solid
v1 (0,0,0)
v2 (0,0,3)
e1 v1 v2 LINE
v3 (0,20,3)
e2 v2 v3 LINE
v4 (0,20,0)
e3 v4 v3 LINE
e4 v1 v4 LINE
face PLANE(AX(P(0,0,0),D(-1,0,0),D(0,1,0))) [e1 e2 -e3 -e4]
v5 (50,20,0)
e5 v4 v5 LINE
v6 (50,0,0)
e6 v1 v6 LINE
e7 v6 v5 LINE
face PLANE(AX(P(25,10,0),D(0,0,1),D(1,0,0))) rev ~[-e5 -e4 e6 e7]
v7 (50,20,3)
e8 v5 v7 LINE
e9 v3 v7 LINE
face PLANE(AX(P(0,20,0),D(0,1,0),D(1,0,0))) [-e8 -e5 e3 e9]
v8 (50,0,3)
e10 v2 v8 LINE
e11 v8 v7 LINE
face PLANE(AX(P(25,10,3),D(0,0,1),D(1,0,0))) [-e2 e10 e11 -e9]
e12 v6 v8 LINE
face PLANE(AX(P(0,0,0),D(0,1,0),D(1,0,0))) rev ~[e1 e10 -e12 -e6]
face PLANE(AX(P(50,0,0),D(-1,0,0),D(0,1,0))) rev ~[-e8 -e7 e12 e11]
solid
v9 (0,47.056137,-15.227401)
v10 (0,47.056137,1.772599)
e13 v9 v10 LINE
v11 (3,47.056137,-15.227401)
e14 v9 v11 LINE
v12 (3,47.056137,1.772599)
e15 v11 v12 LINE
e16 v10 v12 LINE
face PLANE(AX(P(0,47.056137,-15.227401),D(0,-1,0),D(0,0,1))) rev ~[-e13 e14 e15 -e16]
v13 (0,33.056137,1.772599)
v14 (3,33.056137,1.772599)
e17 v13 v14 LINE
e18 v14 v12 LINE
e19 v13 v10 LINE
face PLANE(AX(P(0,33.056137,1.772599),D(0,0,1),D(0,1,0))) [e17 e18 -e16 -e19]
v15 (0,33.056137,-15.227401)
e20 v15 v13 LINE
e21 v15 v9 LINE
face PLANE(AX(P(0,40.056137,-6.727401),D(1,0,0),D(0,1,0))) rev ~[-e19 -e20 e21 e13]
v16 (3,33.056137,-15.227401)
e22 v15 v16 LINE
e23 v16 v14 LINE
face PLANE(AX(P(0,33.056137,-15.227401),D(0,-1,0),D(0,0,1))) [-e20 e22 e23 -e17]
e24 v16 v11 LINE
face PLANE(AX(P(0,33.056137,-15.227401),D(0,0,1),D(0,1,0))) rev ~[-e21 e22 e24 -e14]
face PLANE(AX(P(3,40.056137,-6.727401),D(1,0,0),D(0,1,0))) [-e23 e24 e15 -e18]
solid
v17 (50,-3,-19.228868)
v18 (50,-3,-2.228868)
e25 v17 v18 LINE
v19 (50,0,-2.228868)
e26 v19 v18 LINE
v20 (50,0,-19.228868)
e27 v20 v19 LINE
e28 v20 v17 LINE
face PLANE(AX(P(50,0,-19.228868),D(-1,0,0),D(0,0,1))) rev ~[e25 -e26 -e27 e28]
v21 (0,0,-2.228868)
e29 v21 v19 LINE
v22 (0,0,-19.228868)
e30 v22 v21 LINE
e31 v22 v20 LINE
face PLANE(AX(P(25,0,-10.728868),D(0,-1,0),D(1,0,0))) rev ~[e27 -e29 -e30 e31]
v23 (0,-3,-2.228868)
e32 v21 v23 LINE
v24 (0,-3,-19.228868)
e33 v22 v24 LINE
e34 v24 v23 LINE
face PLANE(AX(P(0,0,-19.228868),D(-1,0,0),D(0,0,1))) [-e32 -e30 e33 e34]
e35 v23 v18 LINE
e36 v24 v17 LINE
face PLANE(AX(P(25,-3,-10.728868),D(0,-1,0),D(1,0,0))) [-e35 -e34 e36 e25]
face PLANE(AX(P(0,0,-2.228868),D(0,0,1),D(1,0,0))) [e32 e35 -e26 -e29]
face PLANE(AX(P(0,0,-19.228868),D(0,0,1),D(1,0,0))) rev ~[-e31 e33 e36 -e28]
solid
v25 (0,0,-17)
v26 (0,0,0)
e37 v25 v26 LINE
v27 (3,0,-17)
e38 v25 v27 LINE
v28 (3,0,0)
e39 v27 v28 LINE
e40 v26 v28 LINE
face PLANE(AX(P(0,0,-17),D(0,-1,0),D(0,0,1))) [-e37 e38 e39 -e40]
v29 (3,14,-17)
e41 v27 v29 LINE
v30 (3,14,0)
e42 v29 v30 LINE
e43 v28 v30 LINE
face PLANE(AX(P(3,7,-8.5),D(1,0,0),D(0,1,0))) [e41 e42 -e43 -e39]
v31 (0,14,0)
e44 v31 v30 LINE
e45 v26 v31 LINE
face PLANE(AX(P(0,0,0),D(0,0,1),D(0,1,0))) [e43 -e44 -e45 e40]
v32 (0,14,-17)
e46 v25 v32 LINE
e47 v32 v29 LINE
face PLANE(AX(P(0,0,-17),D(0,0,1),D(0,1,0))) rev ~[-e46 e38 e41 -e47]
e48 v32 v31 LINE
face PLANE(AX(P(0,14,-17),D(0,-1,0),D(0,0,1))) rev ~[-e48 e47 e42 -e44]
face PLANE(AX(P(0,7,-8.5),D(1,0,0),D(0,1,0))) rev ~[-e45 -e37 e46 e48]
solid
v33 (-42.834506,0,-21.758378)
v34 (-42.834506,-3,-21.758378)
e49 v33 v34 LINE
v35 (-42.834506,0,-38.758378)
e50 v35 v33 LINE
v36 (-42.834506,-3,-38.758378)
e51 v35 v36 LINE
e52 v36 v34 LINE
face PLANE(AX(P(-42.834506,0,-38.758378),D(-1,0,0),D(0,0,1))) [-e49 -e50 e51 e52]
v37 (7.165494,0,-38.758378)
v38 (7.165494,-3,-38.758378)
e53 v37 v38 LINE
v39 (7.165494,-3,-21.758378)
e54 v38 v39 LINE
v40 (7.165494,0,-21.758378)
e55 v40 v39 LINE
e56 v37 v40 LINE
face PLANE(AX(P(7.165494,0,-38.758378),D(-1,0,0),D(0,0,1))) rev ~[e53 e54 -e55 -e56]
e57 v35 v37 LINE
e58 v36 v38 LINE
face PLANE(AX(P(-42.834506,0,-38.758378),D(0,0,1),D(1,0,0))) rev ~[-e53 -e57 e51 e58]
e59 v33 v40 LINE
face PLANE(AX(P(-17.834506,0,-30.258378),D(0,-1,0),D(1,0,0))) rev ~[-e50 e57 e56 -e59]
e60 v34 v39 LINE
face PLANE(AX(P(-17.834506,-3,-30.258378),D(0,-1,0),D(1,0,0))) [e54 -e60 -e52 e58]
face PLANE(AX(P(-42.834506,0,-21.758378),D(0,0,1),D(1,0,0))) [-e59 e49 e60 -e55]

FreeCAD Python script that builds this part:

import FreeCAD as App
import Part
import Sketcher

doc = App.newDocument("Part")
body = doc.addObject("PartDesign::Body", "Body")

# Sketch on XY plane
sketch1 = body.newObject("Sketcher::SketchObject", "Sketch")
sketch1.AttachmentSupport = (doc.getObject("XY_Plane"), [""])
sketch1.MapMode = "FlatFace"
sketch1.addGeometry(Part.LineSegment(App.Vector(-95, 173, 0), App.Vector(0, 0, 0)), False)
sketch1.addGeometry(Part.LineSegment(App.Vector(0, 0, 0), App.Vector(49, 0, 0)), False)
sketch1.addGeometry(Part.LineSegment(App.Vector(49, 0, 0), App.Vector(-43, 173, 0)), False)
sketch1.addGeometry(Part.LineSegment(App.Vector(-43, 173, 0), App.Vector(-95, 173, 0)), False)
sketch1.addConstraint(Sketcher.Constraint("Coincident", 0, 2, 1, 1))
sketch1.addConstraint(Sketcher.Constraint("Coincident", 1, 2, 2, 1))
sketch1.addConstraint(Sketcher.Constraint("Coincident", 2, 2, 3, 1))
sketch1.addConstraint(Sketcher.Constraint("Coincident", 3, 2, 0, 1))
sketch1.addConstraint(Sketcher.Constraint("Horizontal", 1))
sketch1.addConstraint(Sketcher.Constraint("Horizontal", 3))
sketch1.addConstraint(Sketcher.Constraint("Coincident", 0, 2, -1, 1))
sketch1.addConstraint(Sketcher.Constraint("DistanceX", 1, 1, 1, 2, 49.20236))
sketch1.addConstraint(Sketcher.Constraint("DistanceX", 3, 2, 3, 1, 51.842708))
sketch1.addConstraint(Sketcher.Constraint("Distance", 2, 196.427181))
sketch1.addConstraint(Sketcher.Constraint("DistanceX", 2, 2, -1, 1, 43.242309))
pad1 = body.newObject("PartDesign::Pad", "Pad")
pad1.Profile = sketch1
pad1.Length = 5.08
pad1.Reversed = True
body2 = doc.addObject("PartDesign::Body", "Body001")

# Sketch on XY plane
sketch2 = body2.newObject("Sketcher::SketchObject", "Sketch001")
sketch2.AttachmentSupport = (doc.getObject("XY_Plane001"), [""])
sketch2.MapMode = "FlatFace"
sketch2.addGeometry(Part.LineSegment(App.Vector(0, 20, 0), App.Vector(0, 0, 0)), False)
sketch2.addGeometry(Part.LineSegment(App.Vector(0, 0, 0), App.Vector(50, 0, 0)), False)
sketch2.addGeometry(Part.LineSegment(App.Vector(50, 0, 0), App.Vector(50, 20, 0)), False)
sketch2.addGeometry(Part.LineSegment(App.Vector(50, 20, 0), App.Vector(0, 20, 0)), False)
sketch2.addConstraint(Sketcher.Constraint("Coincident", 0, 2, 1, 1))
sketch2.addConstraint(Sketcher.Constraint("Coincident", 1, 2, 2, 1))
sketch2.addConstraint(Sketcher.Constraint("Coincident", 2, 2, 3, 1))
sketch2.addConstraint(Sketcher.Constraint("Coincident", 3, 2, 0, 1))
sketch2.addConstraint(Sketcher.Constraint("Vertical", 0))
sketch2.addConstraint(Sketcher.Constraint("Horizontal", 1))
sketch2.addConstraint(Sketcher.Constraint("Vertical", 2))
sketch2.addConstraint(Sketcher.Constraint("Horizontal", 3))
sketch2.addConstraint(Sketcher.Constraint("Coincident", 0, 2, -1, 1))
sketch2.addConstraint(Sketcher.Constraint("DistanceX", 1, 1, 1, 2, 50.0))
sketch2.addConstraint(Sketcher.Constraint("DistanceY", 0, 2, 0, 1, 20.0))
pad2 = body2.newObject("PartDesign::Pad", "Pad001")
pad2.Profile = sketch2
pad2.Length = 3
body3 = doc.addObject("PartDesign::Body", "Body002")

# Sketch on XZ plane
sketch3 = body3.newObject("Sketcher::SketchObject", "Sketch002")
sketch3.AttachmentSupport = (doc.getObject("XZ_Plane002"), [""])
sketch3.MapMode = "FlatFace"
sketch3.addGeometry(Part.LineSegment(App.Vector(0, -2, 0), App.Vector(0, -19, 0)), False)
sketch3.addGeometry(Part.LineSegment(App.Vector(0, -19, 0), App.Vector(50, -19, 0)), False)
sketch3.addGeometry(Part.LineSegment(App.Vector(50, -19, 0), App.Vector(50, -2, 0)), False)
sketch3.addGeometry(Part.LineSegment(App.Vector(50, -2, 0), App.Vector(0, -2, 0)), False)
sketch3.addConstraint(Sketcher.Constraint("Coincident", 0, 2, 1, 1))
sketch3.addConstraint(Sketcher.Constraint("Coincident", 1, 2, 2, 1))
sketch3.addConstraint(Sketcher.Constraint("Coincident", 2, 2, 3, 1))
sketch3.addConstraint(Sketcher.Constraint("Coincident", 3, 2, 0, 1))
sketch3.addConstraint(Sketcher.Constraint("Vertical", 0))
sketch3.addConstraint(Sketcher.Constraint("Horizontal", 1))
sketch3.addConstraint(Sketcher.Constraint("Vertical", 2))
sketch3.addConstraint(Sketcher.Constraint("Horizontal", 3))
sketch3.addConstraint(Sketcher.Constraint("PointOnObject", 0, 2, -2))
sketch3.addConstraint(Sketcher.Constraint("DistanceX", 1, 1, 1, 2, 50.0))
sketch3.addConstraint(Sketcher.Constraint("DistanceY", 0, 2, 0, 1, 17.0))
sketch3.addConstraint(Sketcher.Constraint("DistanceY", 0, 2, -1, 1, 19.228868))
pad3 = body3.newObject("PartDesign::Pad", "Pad002")
pad3.Profile = sketch3
pad3.Length = 3
body4 = doc.addObject("PartDesign::Body", "Body003")

# Sketch on YZ plane
sketch4 = body4.newObject("Sketcher::SketchObject", "Sketch003")
sketch4.AttachmentSupport = (doc.getObject("YZ_Plane003"), [""])
sketch4.MapMode = "FlatFace"
sketch4.addGeometry(Part.LineSegment(App.Vector(0, 0, 0), App.Vector(0, -17, 0)), False)
sketch4.addGeometry(Part.LineSegment(App.Vector(0, -17, 0), App.Vector(14, -17, 0)), False)
sketch4.addGeometry(Part.LineSegment(App.Vector(14, -17, 0), App.Vector(14, 0, 0)), False)
sketch4.addGeometry(Part.LineSegment(App.Vector(14, 0, 0), App.Vector(0, 0, 0)), False)
sketch4.addConstraint(Sketcher.Constraint("Coincident", 0, 2, 1, 1))
sketch4.addConstraint(Sketcher.Constraint("Coincident", 1, 2, 2, 1))
sketch4.addConstraint(Sketcher.Constraint("Coincident", 2, 2, 3, 1))
sketch4.addConstraint(Sketcher.Constraint("Coincident", 3, 2, 0, 1))
sketch4.addConstraint(Sketcher.Constraint("Vertical", 0))
sketch4.addConstraint(Sketcher.Constraint("Horizontal", 1))
sketch4.addConstraint(Sketcher.Constraint("Vertical", 2))
sketch4.addConstraint(Sketcher.Constraint("Horizontal", 3))
sketch4.addConstraint(Sketcher.Constraint("Coincident", 3, 2, -1, 1))
sketch4.addConstraint(Sketcher.Constraint("DistanceX", 1, 1, 1, 2, 14.0))
sketch4.addConstraint(Sketcher.Constraint("DistanceY", 0, 2, 0, 1, 17.0))
pad4 = body4.newObject("PartDesign::Pad", "Pad003")
pad4.Profile = sketch4
pad4.Length = 3
body5 = doc.addObject("PartDesign::Body", "Body004")

# Sketch on YZ plane
sketch5 = body5.newObject("Sketcher::SketchObject", "Sketch004")
sketch5.AttachmentSupport = (doc.getObject("YZ_Plane004"), [""])
sketch5.MapMode = "FlatFace"
sketch5.addGeometry(Part.LineSegment(App.Vector(33, 2, 0), App.Vector(33, -15, 0)), False)
sketch5.addGeometry(Part.LineSegment(App.Vector(33, -15, 0), App.Vector(47, -15, 0)), False)
sketch5.addGeometry(Part.LineSegment(App.Vector(47, -15, 0), App.Vector(47, 2, 0)), False)
sketch5.addGeometry(Part.LineSegment(App.Vector(47, 2, 0), App.Vector(33, 2, 0)), False)
sketch5.addConstraint(Sketcher.Constraint("Coincident", 0, 2, 1, 1))
sketch5.addConstraint(Sketcher.Constraint("Coincident", 1, 2, 2, 1))
sketch5.addConstraint(Sketcher.Constraint("Coincident", 2, 2, 3, 1))
sketch5.addConstraint(Sketcher.Constraint("Coincident", 3, 2, 0, 1))
sketch5.addConstraint(Sketcher.Constraint("Vertical", 0))
sketch5.addConstraint(Sketcher.Constraint("Horizontal", 1))
sketch5.addConstraint(Sketcher.Constraint("Vertical", 2))
sketch5.addConstraint(Sketcher.Constraint("Horizontal", 3))
sketch5.addConstraint(Sketcher.Constraint("DistanceX", 1, 1, 1, 2, 14.0))
sketch5.addConstraint(Sketcher.Constraint("DistanceY", 0, 2, 0, 1, 17.0))
sketch5.addConstraint(Sketcher.Constraint("DistanceY", 0, 2, -1, 1, 15.227401))
sketch5.addConstraint(Sketcher.Constraint("DistanceX", -1, 1, 0, 2, 33.056137))
pad5 = body5.newObject("PartDesign::Pad", "Pad004")
pad5.Profile = sketch5
pad5.Length = 3
body6 = doc.addObject("PartDesign::Body", "Body005")

# Sketch on XZ plane
sketch6 = body6.newObject("Sketcher::SketchObject", "Sketch005")
sketch6.AttachmentSupport = (doc.getObject("XZ_Plane005"), [""])
sketch6.MapMode = "FlatFace"
sketch6.addGeometry(Part.LineSegment(App.Vector(-43, -22, 0), App.Vector(-43, -39, 0)), False)
sketch6.addGeometry(Part.LineSegment(App.Vector(-43, -39, 0), App.Vector(7, -39, 0)), False)
sketch6.addGeometry(Part.LineSegment(App.Vector(7, -39, 0), App.Vector(7, -22, 0)), False)
sketch6.addGeometry(Part.LineSegment(App.Vector(7, -22, 0), App.Vector(-43, -22, 0)), False)
sketch6.addConstraint(Sketcher.Constraint("Coincident", 0, 2, 1, 1))
sketch6.addConstraint(Sketcher.Constraint("Coincident", 1, 2, 2, 1))
sketch6.addConstraint(Sketcher.Constraint("Coincident", 2, 2, 3, 1))
sketch6.addConstraint(Sketcher.Constraint("Coincident", 3, 2, 0, 1))
sketch6.addConstraint(Sketcher.Constraint("Vertical", 0))
sketch6.addConstraint(Sketcher.Constraint("Horizontal", 1))
sketch6.addConstraint(Sketcher.Constraint("Vertical", 2))
sketch6.addConstraint(Sketcher.Constraint("Horizontal", 3))
sketch6.addConstraint(Sketcher.Constraint("DistanceX", 1, 1, 1, 2, 50.0))
sketch6.addConstraint(Sketcher.Constraint("DistanceY", 0, 2, 0, 1, 17.0))
sketch6.addConstraint(Sketcher.Constraint("DistanceY", 0, 2, -1, 1, 38.758378))
sketch6.addConstraint(Sketcher.Constraint("DistanceX", 0, 2, -1, 1, 42.834506))
pad6 = body6.newObject("PartDesign::Pad", "Pad005")
pad6.Profile = sketch6
pad6.Length = 3
body.Visibility = False

doc.recompute()
